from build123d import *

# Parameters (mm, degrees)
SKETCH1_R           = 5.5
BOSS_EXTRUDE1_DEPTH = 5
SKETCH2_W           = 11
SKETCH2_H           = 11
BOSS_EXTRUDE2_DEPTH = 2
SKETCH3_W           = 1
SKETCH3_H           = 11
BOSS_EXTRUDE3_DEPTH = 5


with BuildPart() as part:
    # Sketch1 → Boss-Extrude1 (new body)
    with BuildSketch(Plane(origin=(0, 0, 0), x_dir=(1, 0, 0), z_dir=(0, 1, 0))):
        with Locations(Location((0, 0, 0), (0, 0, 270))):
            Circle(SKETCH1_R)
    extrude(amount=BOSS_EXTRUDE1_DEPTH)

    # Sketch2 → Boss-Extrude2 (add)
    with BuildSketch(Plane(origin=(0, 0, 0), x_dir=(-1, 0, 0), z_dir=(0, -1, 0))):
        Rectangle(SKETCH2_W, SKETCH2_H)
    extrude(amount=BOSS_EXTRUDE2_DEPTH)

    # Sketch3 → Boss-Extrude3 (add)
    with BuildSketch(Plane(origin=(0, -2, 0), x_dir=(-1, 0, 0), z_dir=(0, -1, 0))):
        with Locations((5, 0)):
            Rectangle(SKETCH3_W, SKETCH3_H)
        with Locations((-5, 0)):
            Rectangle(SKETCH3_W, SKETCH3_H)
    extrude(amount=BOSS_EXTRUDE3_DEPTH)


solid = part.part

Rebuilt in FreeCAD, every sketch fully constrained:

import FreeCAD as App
import Part
import Sketcher


def add_polygon(sketch, points):
    """Adds a closed chain of lines whose ends are joined by coincident constraints."""
    first, n = sketch.GeometryCount, len(points)
    for a, b in zip(points, points[1:] + points[:1]):
        sketch.addGeometry(Part.LineSegment(App.Vector(*a, 0), App.Vector(*b, 0)), False)
    for i in range(n):
        sketch.addConstraint(Sketcher.Constraint("Coincident", first + i, 2, first + (i + 1) % n, 1))

doc = App.newDocument("Part")
params = doc.addObject("Spreadsheet::Sheet", "Params")
for row, (alias, value) in enumerate([
    ("sketch1_diameter", "11 mm"),
    ("pad1_length", "5 mm"),
    ("sketch2_width", "11 mm"),
    ("pad2_length", "2 mm"),
    ("sketch3_width", "1 mm"),
    ("sketch3_height", "11 mm"),
    ("pad3_length", "5 mm"),
], start=1):
    params.set(f"A{row}", alias)
    params.set(f"B{row}", "=" + value)
    params.setAlias(f"B{row}", alias)

body = doc.addObject("PartDesign::Body", "Body")

# Sketch on XZ plane
sketch1 = body.newObject("Sketcher::SketchObject", "Sketch")
sketch1.AttachmentSupport = (doc.getObject("XZ_Plane"), [""])
sketch1.MapMode = "FlatFace"
sketch1.addGeometry(Part.Circle(App.Vector(0, 0, 0), App.Vector(0, 0, 1), 6), False)
sketch1.addConstraint([
    Sketcher.Constraint("Coincident", 0, 3, -1, 1),
    Sketcher.Constraint("Diameter", 0, 11.0),
])
sketch1.setExpression("Constraints[1]", "Params.sketch1_diameter")
pad1 = body.newObject("PartDesign::Pad", "Pad")
pad1.Profile = sketch1
pad1.setExpression("Length", "Params.pad1_length")
pad1.Reversed = True

# Sketch on XZ plane
sketch2 = body.newObject("Sketcher::SketchObject", "Sketch001")
sketch2.AttachmentSupport = (doc.getObject("XZ_Plane"), [""])
sketch2.MapMode = "FlatFace"
add_polygon(sketch2, [(6, -6), (6, 6), (-6, 6), (-6, -6)])  # lines 0-3
sketch2.addConstraint([
    Sketcher.Constraint("Vertical", 0),
    Sketcher.Constraint("Horizontal", 1),
    Sketcher.Constraint("Vertical", 2),
    Sketcher.Constraint("Horizontal", 3),
    Sketcher.Constraint("Symmetric", 0, 2, 2, 2, -1, 1),
    Sketcher.Constraint("Equal", 3, 0),
    Sketcher.Constraint("DistanceX", 1, 2, 1, 1, 11.0),
])
sketch2.setExpression("Constraints[10]", "Params.sketch2_width")
pad2 = body.newObject("PartDesign::Pad", "Pad001")
pad2.Profile = sketch2
pad2.setExpression("Length", "Params.pad2_length")

# Sketch on XZ plane
sketch3 = body.newObject("Sketcher::SketchObject", "Sketch002")
sketch3.AttachmentSupport = (doc.getObject("XZ_Plane"), [""])
sketch3.MapMode = "FlatFace"
sketch3.AttachmentOffset = App.Placement(App.Vector(0, 0, 2), App.Rotation())
add_polygon(sketch3, [(-4.5, -5.5), (-4.5, 5.5), (-5.5, 5.5), (-5.5, -5.5)])  # lines 0-3
add_polygon(sketch3, [(5.5, -5.5), (5.5, 5.5), (4.5, 5.5), (4.5, -5.5)])  # lines 4-7
sketch3.addConstraint([
    Sketcher.Constraint("Vertical", 0),
    Sketcher.Constraint("Horizontal", 1),
    Sketcher.Constraint("Vertical", 2),
    Sketcher.Constraint("Horizontal", 3),
    Sketcher.Constraint("Vertical", 4),
    Sketcher.Constraint("Horizontal", 5),
    Sketcher.Constraint("Vertical", 6),
    Sketcher.Constraint("Horizontal", 7),
    Sketcher.Constraint("Symmetric", 2, 2, 4, 2, -1, 1),
    Sketcher.Constraint("Symmetric", 0, 2, 6, 2, -1, 1),
    Sketcher.Constraint("Horizontal", 1, 2, 4, 2),
    Sketcher.Constraint("DistanceX", 1, 2, 1, 1, 1.0),
    Sketcher.Constraint("DistanceY", 0, 1, 0, 2, 11.0),
    Sketcher.Constraint("DistanceX", 0, 2, 4, 2, 10.0),
])
sketch3.setExpression("Constraints[19]", "Params.sketch3_width")
sketch3.setExpression("Constraints[20]", "Params.sketch3_height")
pad3 = body.newObject("PartDesign::Pad", "Pad002")
pad3.Profile = sketch3
pad3.setExpression("Length", "Params.pad3_length")

doc.recompute()
